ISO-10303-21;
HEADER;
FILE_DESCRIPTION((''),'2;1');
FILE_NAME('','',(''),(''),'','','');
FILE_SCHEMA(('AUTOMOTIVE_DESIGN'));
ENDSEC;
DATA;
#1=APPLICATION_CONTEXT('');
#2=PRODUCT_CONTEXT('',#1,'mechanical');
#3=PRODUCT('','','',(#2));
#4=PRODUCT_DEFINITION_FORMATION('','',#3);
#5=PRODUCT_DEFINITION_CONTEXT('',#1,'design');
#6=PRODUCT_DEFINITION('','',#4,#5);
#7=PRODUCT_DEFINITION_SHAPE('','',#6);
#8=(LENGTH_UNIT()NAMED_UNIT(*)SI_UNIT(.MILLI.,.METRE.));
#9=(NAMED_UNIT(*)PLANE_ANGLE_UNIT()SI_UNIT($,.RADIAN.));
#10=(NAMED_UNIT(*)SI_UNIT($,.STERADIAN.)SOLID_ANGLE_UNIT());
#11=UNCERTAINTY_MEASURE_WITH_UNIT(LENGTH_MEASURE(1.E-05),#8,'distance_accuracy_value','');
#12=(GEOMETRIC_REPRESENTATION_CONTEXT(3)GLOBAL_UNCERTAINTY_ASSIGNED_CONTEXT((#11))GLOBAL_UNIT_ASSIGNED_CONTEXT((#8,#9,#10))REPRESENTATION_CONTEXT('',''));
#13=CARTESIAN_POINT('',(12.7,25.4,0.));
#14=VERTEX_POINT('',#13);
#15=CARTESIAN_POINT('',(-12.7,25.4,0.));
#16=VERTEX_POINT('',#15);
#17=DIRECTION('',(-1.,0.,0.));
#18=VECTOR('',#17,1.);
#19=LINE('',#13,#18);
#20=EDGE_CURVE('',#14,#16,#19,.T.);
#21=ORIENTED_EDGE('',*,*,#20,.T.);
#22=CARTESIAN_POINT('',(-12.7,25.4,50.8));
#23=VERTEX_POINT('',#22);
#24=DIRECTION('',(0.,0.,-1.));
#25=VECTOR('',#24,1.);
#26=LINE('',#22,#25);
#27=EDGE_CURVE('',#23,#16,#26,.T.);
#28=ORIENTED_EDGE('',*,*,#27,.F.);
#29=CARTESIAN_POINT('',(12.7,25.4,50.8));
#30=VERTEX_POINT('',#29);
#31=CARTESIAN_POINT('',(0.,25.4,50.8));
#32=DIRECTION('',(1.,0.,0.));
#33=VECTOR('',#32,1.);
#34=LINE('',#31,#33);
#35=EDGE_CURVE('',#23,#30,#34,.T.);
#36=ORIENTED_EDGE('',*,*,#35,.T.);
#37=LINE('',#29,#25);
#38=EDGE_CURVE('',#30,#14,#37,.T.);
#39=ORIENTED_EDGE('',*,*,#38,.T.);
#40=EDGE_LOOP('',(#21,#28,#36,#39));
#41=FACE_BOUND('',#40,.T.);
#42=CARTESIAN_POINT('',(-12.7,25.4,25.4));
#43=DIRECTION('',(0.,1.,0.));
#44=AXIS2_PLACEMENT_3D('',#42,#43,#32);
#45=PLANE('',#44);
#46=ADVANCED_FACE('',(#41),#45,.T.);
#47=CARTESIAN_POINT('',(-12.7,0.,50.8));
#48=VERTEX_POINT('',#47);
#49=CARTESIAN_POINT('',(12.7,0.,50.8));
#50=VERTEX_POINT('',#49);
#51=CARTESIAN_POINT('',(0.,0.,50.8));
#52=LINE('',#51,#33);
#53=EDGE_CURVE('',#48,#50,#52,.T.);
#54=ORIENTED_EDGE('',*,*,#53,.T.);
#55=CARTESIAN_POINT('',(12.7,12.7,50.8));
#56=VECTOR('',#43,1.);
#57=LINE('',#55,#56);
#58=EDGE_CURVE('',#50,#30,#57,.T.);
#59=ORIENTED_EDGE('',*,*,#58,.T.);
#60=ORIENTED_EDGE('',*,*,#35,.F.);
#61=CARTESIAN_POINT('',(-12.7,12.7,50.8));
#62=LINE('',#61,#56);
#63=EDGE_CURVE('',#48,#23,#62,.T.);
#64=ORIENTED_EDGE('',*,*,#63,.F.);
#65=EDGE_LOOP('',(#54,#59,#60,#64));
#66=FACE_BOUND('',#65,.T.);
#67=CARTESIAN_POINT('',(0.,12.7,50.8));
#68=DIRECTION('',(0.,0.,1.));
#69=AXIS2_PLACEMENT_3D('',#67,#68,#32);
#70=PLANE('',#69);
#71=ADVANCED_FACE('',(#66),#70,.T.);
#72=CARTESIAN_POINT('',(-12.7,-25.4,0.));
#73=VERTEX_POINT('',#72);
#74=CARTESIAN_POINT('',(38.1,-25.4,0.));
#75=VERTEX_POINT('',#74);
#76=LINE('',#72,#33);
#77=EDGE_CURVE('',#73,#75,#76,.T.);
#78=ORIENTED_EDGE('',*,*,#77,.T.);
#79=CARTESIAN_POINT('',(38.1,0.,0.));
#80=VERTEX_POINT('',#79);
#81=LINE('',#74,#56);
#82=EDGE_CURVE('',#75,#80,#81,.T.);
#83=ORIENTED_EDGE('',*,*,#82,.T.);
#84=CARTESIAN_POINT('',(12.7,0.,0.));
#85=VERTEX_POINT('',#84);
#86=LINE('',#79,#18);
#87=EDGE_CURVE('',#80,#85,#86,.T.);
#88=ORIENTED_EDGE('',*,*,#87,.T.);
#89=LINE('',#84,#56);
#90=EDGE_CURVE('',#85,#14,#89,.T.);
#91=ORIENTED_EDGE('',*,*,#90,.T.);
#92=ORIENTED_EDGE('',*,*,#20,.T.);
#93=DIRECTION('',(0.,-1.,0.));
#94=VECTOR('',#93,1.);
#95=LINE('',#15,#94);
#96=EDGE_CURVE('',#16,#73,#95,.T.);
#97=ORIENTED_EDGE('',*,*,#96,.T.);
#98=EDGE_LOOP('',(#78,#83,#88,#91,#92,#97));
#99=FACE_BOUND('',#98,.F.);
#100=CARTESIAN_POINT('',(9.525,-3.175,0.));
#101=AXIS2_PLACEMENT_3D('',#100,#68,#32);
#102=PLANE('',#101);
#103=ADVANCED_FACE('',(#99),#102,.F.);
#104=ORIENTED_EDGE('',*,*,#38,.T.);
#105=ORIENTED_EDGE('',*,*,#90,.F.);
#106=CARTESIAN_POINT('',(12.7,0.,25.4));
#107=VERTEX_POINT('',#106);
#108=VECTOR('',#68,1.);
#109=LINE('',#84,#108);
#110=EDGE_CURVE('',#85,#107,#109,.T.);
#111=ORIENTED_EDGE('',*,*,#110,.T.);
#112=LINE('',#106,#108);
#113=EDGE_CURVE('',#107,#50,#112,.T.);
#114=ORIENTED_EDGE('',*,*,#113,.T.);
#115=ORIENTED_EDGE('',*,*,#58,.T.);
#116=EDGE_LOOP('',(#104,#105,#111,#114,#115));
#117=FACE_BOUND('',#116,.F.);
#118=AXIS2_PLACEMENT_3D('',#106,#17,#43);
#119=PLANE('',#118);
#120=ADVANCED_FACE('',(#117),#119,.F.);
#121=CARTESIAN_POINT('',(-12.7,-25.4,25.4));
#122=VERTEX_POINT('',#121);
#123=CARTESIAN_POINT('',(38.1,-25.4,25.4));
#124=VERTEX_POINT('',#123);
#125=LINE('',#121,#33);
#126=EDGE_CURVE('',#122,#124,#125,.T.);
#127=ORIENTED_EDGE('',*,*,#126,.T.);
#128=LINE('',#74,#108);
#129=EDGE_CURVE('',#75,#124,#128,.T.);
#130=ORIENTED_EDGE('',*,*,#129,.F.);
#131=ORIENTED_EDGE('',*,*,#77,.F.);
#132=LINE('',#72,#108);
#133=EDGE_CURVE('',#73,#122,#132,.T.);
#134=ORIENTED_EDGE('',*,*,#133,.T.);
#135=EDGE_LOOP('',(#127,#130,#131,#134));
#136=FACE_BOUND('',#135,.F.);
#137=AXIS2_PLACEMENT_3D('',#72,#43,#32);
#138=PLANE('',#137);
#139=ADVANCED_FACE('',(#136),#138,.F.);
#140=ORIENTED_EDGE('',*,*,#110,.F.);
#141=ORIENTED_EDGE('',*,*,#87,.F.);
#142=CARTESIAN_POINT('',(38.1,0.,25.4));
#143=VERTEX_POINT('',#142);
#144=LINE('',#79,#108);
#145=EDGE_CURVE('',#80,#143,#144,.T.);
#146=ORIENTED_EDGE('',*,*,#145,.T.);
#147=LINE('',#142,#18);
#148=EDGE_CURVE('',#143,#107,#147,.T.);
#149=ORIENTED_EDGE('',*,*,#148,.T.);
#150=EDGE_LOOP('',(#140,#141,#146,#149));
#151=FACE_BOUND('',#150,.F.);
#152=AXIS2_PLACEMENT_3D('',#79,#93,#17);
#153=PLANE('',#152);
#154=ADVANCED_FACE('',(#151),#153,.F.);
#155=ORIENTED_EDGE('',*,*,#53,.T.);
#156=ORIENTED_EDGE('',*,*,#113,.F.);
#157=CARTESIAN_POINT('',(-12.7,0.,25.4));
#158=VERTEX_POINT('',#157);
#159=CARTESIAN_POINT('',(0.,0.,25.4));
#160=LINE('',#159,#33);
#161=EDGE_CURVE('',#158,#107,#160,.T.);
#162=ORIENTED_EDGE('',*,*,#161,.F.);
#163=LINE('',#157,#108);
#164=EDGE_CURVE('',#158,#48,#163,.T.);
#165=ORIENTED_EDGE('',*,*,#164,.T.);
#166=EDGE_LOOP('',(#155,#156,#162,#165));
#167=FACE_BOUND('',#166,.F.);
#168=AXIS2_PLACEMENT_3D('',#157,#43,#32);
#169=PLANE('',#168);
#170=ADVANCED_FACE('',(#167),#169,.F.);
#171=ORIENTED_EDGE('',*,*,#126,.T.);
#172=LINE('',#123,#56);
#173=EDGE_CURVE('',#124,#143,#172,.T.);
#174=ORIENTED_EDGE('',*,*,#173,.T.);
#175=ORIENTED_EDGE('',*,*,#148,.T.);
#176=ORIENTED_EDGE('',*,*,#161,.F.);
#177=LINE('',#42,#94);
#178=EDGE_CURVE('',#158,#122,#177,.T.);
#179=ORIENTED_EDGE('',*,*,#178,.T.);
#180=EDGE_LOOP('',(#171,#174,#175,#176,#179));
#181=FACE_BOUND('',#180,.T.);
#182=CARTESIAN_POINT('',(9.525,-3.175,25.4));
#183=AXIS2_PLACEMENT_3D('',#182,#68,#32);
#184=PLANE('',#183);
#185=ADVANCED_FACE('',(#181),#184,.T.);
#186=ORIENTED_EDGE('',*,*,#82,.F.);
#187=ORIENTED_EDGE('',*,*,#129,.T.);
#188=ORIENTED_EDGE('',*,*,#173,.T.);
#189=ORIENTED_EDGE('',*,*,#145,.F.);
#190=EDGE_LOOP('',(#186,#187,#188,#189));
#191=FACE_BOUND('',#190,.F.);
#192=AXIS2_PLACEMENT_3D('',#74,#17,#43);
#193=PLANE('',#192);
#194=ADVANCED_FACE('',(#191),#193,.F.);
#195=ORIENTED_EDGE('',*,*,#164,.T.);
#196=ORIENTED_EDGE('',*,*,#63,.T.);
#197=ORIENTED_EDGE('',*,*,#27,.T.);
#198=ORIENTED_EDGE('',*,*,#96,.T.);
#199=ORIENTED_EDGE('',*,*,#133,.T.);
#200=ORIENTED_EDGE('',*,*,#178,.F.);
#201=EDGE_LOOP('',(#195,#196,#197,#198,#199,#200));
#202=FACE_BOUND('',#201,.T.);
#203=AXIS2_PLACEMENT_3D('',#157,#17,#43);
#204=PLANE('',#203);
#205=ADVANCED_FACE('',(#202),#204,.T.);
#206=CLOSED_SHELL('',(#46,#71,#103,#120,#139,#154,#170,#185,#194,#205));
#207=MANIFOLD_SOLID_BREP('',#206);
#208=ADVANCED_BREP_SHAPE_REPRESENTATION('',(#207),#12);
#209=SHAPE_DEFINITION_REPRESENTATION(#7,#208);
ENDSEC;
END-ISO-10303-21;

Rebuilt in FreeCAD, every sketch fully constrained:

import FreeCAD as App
import Part
import Sketcher
Q = App.Units.Quantity


def add_polygon(sketch, points):
    """Adds a closed chain of lines whose ends are joined by coincident constraints."""
    first, n = sketch.GeometryCount, len(points)
    for a, b in zip(points, points[1:] + points[:1]):
        sketch.addGeometry(Part.LineSegment(App.Vector(*a, 0), App.Vector(*b, 0)), False)
    for i in range(n):
        sketch.addConstraint(Sketcher.Constraint("Coincident", first + i, 2, first + (i + 1) % n, 1))

doc = App.newDocument("Part")
params = doc.addObject("Spreadsheet::Sheet", "Params")
for row, (alias, value) in enumerate([
    ("sketch1_width", "2 in"),
    ("pad1_length", "1 in"),
    ("sketch2_width", "1 in"),
    ("pad2_length", "1 in"),
], start=1):
    params.set(f"A{row}", alias)
    params.set(f"B{row}", "=" + value)
    params.setAlias(f"B{row}", alias)

body = doc.addObject("PartDesign::Body", "Body")

# Sketch on XY plane
sketch1 = doc.addObject("Sketcher::SketchObject", "Sketch")
body.addObject(sketch1)
sketch1.AttachmentSupport = (doc.XY_Plane, [""])
sketch1.MapMode = "FlatFace"
add_polygon(sketch1, [(-12.7, -25.4), (38.1, -25.4), (38.1, 0), (12.7, 0), (12.7, 25.4), (-12.7, 25.4)])  # lines 0-5
sketch1.addConstraint(Sketcher.Constraint("Horizontal", 0))
sketch1.addConstraint(Sketcher.Constraint("Vertical", 1))
sketch1.addConstraint(Sketcher.Constraint("Horizontal", 2))
sketch1.addConstraint(Sketcher.Constraint("Vertical", 3))
sketch1.addConstraint(Sketcher.Constraint("Horizontal", 4))
sketch1.addConstraint(Sketcher.Constraint("Vertical", 5))
sketch1.addConstraint(Sketcher.Constraint("Symmetric", 3, 2, 5, 2, -1, 1))
sketch1.addConstraint(Sketcher.Constraint("PointOnObject", 1, 2, -1))
sketch1.addConstraint(Sketcher.Constraint("Equal", 2, 4))
sketch1.addConstraint(Sketcher.Constraint("Equal", 4, 1))
sketch1.addConstraint(Sketcher.Constraint("DistanceX", 0, 1, 0, 2, Q("2 in")))
sketch1.setExpression("Constraints[16]", "Params.sketch1_width")
pad1 = doc.addObject("PartDesign::Pad", "Pad")
body.addObject(pad1)
pad1.Profile = sketch1
pad1.setExpression("Length", "Params.pad1_length")

# Sketch on XY plane
sketch2 = doc.addObject("Sketcher::SketchObject", "Sketch001")
body.addObject(sketch2)
sketch2.AttachmentSupport = (doc.XY_Plane, [""])
sketch2.MapMode = "FlatFace"
sketch2.AttachmentOffset = App.Placement(App.Vector(0, 0, 1 * 25.4), App.Rotation())
add_polygon(sketch2, [(-12.7, 25.4), (-12.7, 0), (12.7, 0), (12.7, 25.4)])  # lines 0-3
sketch2.addConstraint(Sketcher.Constraint("Vertical", 0))
sketch2.addConstraint(Sketcher.Constraint("Horizontal", 1))
sketch2.addConstraint(Sketcher.Constraint("Vertical", 2))
sketch2.addConstraint(Sketcher.Constraint("Horizontal", 3))
sketch2.addConstraint(Sketcher.Constraint("Symmetric", 0, 2, 1, 2, -1, 1))
sketch2.addConstraint(Sketcher.Constraint("Equal", 3, 0))
sketch2.addConstraint(Sketcher.Constraint("DistanceX", 1, 1, 1, 2, Q("1 in")))
sketch2.setExpression("Constraints[10]", "Params.sketch2_width")
pad2 = doc.addObject("PartDesign::Pad", "Pad001")
body.addObject(pad2)
pad2.Profile = sketch2
pad2.setExpression("Length", "Params.pad2_length")

doc.recompute()
